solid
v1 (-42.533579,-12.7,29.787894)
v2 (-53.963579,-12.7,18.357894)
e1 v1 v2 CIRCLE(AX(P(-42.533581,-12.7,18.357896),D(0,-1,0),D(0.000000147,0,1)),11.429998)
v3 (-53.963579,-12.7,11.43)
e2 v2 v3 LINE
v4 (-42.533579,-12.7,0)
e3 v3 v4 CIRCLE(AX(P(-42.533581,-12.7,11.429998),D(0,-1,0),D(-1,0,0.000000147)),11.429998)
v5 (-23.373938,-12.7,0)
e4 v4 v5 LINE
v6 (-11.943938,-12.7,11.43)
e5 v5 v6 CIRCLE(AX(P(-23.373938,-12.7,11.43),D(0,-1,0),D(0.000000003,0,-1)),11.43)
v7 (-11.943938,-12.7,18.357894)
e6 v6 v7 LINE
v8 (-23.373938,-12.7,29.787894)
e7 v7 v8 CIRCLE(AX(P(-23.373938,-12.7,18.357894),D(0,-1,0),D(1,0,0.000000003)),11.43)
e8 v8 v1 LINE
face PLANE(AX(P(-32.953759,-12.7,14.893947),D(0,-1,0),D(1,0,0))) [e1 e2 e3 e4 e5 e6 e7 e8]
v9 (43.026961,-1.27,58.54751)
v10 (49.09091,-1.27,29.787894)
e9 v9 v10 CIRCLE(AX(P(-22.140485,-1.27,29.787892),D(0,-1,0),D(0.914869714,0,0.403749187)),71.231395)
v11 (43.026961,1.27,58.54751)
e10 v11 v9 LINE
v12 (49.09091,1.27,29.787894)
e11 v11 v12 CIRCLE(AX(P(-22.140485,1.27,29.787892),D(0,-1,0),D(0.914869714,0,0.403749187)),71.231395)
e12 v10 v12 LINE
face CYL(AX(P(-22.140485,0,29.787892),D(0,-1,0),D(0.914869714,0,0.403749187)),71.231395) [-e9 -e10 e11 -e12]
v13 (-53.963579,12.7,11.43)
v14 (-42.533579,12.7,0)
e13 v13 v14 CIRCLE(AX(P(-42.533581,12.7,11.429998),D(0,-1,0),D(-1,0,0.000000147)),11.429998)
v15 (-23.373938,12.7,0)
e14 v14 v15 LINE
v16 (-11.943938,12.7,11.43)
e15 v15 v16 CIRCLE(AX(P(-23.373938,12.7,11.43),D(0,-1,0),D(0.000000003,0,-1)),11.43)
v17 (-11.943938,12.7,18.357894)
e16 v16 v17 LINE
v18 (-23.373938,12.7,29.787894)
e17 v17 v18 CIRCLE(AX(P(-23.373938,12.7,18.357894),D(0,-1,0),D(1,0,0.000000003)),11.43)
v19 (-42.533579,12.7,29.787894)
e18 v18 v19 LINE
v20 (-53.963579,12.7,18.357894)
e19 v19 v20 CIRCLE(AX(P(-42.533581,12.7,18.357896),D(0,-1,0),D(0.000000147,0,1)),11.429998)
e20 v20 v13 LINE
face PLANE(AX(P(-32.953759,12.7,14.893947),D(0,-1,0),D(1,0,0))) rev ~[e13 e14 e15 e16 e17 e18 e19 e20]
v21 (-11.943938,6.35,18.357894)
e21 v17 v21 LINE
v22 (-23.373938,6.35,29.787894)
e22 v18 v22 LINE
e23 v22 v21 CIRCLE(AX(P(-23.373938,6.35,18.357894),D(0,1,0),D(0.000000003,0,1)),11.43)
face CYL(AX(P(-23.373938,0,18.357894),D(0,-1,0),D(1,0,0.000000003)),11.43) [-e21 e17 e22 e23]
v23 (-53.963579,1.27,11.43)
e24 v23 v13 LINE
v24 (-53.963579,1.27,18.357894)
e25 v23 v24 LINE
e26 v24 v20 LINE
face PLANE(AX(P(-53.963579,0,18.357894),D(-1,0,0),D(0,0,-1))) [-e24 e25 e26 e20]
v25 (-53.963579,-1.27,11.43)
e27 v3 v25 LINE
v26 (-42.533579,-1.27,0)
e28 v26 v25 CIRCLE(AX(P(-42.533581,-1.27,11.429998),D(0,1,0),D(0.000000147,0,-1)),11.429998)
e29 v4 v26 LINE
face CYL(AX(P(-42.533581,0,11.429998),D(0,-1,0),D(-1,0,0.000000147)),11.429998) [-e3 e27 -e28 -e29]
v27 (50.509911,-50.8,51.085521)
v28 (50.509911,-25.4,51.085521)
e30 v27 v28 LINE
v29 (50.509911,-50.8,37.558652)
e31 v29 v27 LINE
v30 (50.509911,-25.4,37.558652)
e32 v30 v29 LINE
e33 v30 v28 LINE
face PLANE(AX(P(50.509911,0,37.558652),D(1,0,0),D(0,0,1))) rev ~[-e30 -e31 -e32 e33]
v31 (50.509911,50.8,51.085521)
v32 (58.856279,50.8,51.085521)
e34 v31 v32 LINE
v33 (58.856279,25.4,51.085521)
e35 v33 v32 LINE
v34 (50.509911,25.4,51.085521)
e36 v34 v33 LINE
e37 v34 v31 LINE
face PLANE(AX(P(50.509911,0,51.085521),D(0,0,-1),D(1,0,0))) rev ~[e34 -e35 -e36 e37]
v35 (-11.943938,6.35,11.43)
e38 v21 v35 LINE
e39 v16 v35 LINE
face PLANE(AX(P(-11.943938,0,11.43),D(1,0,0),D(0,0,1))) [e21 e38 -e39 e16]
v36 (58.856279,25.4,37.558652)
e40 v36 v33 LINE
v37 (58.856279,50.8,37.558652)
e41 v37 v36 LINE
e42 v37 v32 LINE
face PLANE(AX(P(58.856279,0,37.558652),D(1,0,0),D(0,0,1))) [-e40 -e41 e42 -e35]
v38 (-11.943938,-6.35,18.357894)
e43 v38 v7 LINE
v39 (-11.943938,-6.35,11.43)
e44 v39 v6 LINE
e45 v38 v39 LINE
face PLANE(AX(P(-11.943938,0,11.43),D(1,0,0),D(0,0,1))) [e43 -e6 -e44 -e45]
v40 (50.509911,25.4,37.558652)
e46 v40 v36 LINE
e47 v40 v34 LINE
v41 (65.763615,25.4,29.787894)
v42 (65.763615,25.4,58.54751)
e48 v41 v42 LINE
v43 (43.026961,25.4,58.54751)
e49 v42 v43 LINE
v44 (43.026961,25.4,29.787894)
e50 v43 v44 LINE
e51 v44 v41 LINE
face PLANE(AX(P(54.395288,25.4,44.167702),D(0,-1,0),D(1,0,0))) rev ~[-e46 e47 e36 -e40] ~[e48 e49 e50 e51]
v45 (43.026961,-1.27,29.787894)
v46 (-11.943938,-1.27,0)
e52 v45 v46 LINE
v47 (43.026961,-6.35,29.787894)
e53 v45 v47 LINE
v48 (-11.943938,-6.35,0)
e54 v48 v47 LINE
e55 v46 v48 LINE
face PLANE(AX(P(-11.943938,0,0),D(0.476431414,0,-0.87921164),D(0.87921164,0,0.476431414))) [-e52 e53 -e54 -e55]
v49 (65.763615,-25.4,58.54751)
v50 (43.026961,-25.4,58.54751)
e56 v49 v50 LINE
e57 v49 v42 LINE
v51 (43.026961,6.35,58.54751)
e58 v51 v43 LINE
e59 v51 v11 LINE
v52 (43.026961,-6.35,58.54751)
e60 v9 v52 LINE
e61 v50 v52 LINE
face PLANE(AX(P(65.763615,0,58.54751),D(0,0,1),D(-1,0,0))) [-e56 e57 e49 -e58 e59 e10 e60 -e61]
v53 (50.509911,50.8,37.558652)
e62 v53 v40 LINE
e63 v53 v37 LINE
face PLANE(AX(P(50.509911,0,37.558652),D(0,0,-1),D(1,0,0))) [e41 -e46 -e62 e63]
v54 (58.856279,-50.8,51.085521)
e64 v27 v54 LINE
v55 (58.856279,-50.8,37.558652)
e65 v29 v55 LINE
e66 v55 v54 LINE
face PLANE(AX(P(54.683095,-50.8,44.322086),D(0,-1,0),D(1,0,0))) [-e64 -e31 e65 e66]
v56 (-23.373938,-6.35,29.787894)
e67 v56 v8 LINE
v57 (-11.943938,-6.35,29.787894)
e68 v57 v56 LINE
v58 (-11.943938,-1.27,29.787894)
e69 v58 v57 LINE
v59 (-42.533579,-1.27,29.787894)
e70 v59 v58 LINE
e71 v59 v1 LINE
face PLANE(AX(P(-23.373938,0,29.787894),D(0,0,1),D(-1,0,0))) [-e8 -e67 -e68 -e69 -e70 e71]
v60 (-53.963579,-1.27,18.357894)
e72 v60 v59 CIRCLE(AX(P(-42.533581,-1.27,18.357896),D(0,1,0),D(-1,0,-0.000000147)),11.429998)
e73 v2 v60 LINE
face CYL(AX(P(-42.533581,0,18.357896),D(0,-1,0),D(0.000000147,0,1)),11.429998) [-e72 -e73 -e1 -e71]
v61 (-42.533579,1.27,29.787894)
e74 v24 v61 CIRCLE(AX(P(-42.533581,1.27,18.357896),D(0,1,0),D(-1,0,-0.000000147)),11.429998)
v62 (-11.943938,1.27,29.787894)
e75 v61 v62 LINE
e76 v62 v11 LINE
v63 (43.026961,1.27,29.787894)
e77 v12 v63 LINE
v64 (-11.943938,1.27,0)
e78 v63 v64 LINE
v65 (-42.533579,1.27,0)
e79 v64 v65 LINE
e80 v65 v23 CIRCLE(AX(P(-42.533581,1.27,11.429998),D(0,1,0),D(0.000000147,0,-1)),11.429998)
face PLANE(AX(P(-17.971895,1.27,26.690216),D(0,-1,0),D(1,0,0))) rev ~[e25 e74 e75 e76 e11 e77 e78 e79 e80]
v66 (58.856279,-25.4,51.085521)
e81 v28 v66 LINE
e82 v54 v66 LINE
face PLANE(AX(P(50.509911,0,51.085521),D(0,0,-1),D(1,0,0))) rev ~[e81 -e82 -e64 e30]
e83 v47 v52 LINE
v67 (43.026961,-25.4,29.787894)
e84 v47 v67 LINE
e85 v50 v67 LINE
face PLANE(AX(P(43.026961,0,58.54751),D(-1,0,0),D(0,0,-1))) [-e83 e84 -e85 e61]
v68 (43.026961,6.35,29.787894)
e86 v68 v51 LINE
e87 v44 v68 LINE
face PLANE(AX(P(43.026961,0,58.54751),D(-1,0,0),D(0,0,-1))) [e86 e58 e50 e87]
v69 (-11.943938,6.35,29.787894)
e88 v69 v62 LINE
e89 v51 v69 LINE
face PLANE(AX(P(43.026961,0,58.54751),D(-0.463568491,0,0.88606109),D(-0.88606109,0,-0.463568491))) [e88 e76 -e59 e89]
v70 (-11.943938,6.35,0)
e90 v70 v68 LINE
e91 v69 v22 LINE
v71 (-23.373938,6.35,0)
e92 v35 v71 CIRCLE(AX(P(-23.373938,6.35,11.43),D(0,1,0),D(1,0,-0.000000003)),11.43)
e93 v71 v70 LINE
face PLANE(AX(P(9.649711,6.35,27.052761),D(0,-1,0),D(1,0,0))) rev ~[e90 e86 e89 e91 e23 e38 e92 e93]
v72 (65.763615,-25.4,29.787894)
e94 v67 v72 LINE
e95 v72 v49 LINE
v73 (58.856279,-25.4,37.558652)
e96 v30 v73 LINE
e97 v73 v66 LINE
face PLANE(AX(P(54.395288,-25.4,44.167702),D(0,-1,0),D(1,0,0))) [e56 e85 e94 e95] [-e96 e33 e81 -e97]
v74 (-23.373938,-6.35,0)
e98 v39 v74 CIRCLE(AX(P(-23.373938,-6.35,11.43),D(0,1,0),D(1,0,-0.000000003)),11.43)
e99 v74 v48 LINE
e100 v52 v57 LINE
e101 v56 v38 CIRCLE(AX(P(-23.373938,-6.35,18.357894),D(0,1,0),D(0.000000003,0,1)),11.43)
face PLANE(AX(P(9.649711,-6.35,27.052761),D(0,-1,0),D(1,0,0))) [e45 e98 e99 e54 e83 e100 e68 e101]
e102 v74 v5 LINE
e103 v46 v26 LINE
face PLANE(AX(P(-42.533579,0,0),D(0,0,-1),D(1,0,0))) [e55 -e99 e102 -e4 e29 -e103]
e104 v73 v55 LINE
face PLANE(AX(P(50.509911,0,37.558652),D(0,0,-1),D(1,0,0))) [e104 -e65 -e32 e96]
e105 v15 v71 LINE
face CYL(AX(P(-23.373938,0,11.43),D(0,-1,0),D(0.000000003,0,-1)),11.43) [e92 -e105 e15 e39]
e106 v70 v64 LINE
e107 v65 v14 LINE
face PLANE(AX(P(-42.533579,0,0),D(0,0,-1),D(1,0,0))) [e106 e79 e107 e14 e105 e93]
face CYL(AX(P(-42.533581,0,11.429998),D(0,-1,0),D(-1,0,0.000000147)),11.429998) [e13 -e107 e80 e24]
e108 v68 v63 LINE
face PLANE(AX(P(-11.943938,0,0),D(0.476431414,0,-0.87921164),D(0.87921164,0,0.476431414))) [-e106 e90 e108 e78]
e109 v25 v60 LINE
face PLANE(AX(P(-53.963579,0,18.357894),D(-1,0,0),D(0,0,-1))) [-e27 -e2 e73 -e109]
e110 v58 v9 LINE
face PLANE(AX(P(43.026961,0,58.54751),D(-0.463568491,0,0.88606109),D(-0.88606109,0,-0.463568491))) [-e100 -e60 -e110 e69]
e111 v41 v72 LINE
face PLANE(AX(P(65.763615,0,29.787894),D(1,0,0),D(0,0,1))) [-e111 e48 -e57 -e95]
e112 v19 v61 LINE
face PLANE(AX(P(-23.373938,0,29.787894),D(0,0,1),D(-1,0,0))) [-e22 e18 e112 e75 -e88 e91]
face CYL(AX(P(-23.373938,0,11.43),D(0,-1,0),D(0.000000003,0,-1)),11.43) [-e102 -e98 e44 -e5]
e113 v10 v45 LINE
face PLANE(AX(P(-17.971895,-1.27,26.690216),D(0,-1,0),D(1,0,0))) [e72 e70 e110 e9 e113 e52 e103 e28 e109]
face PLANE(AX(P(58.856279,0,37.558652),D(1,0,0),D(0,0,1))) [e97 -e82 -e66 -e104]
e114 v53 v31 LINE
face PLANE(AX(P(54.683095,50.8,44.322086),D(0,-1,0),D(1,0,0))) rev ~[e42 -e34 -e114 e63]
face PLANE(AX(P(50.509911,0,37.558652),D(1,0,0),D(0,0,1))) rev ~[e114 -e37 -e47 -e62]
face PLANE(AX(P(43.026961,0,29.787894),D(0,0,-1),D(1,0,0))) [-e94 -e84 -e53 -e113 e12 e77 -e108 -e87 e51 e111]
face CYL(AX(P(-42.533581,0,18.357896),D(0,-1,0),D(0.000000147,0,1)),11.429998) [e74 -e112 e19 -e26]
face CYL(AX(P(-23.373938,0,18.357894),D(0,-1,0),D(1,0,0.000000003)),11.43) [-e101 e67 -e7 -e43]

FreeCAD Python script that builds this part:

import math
import FreeCAD as App
import Part
import Sketcher
from FreeCAD import Vector
Q = App.Units.Quantity

doc = App.newDocument("Part")
body = doc.addObject("PartDesign::Body", "Body")

sketch1 = doc.addObject("Sketcher::SketchObject", "Sketch")
body.addObject(sketch1)
sketch1.AttachmentSupport = (doc.XZ_Plane, [""])
sketch1.MapMode = "FlatFace"
sketch1.addGeometry([
    Part.LineSegment(Vector(-42.533579, 0, 0), Vector(-23.373938, 0, 0)),
    Part.ArcOfCircle(Part.Circle(Vector(-23.373938, 11.43, 0), Vector(0, 0, 1), 11.43), math.radians(-90), math.radians(0)),
    Part.LineSegment(Vector(-11.943938, 11.43, 0), Vector(-11.943938, 18.357894, 0)),
    Part.ArcOfCircle(Part.Circle(Vector(-23.373938, 18.357894, 0), Vector(0, 0, 1), 11.43), math.radians(0), math.radians(90)),
    Part.LineSegment(Vector(-23.373938, 29.787894, 0), Vector(-42.533579, 29.787894, 0)),
    Part.ArcOfCircle(Part.Circle(Vector(-42.533581, 18.357896, 0), Vector(0, 0, 1), 11.429998), math.radians(89.999992), math.radians(180.000008)),
    Part.LineSegment(Vector(-53.963579, 18.357894, 0), Vector(-53.963579, 11.43, 0)),
    Part.ArcOfCircle(Part.Circle(Vector(-42.533581, 11.429998, 0), Vector(0, 0, 1), 11.429998), math.radians(179.999992), math.radians(270.000008)),
], False)
sketch1.addConstraint([
    Sketcher.Constraint("Tangent", 0, 2, 1, 1),
    Sketcher.Constraint("Tangent", 1, 2, 2, 1),
    Sketcher.Constraint("Tangent", 2, 2, 3, 1),
    Sketcher.Constraint("Tangent", 3, 2, 4, 1),
    Sketcher.Constraint("Tangent", 4, 2, 5, 1),
    Sketcher.Constraint("Tangent", 5, 2, 6, 1),
    Sketcher.Constraint("Tangent", 6, 2, 7, 1),
    Sketcher.Constraint("Tangent", 7, 2, 0, 1),
    Sketcher.Constraint("Horizontal", 0),
    Sketcher.Constraint("Vertical", 2),
    Sketcher.Constraint("Horizontal", 4),
    Sketcher.Constraint("Vertical", 6),
    Sketcher.Constraint("Equal", 1, 3),
    Sketcher.Constraint("Equal", 3, 5),
    Sketcher.Constraint("Equal", 5, 7),
    Sketcher.Constraint("PointOnObject", 0, 2, -1),
    Sketcher.Constraint("Radius", 1, Q("0.45 in")),
    Sketcher.Constraint("DistanceX", 0, 1, 0, 2, Q("19.159641 mm")),
    Sketcher.Constraint("DistanceY", 2, 1, 2, 2, Q("6.927894 mm")),
    Sketcher.Constraint("DistanceX", 1, 3, -1, 1, Q("23.373938 mm")),
])
pad1 = doc.addObject("PartDesign::Pad", "Pad")
body.addObject(pad1)
pad1.Profile = sketch1
pad1.Length = Q("1 in")
pad1.Midplane = True

sketch2 = doc.addObject("Sketcher::SketchObject", "Sketch001")
body.addObject(sketch2)
sketch2.AttachmentSupport = (doc.XZ_Plane, [""])
sketch2.MapMode = "FlatFace"
sketch2.addGeometry([
    Part.ArcOfCircle(Part.Circle(Vector(-23.373938, 11.43, 0), Vector(0, 0, 1), 11.43), math.radians(-90), math.radians(0)),
    Part.LineSegment(Vector(-23.373938, 0, 0), Vector(-11.943938, 0, 0)),
    Part.LineSegment(Vector(-11.943938, 0, 0), Vector(43.026961, 29.787894, 0)),
    Part.LineSegment(Vector(43.026961, 29.787894, 0), Vector(43.026961, 58.54751, 0)),
    Part.LineSegment(Vector(43.026961, 58.54751, 0), Vector(-11.943938, 29.787894, 0)),
    Part.LineSegment(Vector(-11.943938, 29.787894, 0), Vector(-23.373938, 29.787894, 0)),
    Part.ArcOfCircle(Part.Circle(Vector(-23.373938, 18.357894, 0), Vector(0, 0, 1), 11.43), math.radians(0), math.radians(90)),
    Part.LineSegment(Vector(-11.943938, 18.357894, 0), Vector(-11.943938, 11.43, 0)),
], False)
sketch2.addConstraint([
    Sketcher.Constraint("Tangent", 0, 1, 1, 1),
    Sketcher.Constraint("Coincident", 1, 2, 2, 1),
    Sketcher.Constraint("Coincident", 2, 2, 3, 1),
    Sketcher.Constraint("Coincident", 3, 2, 4, 1),
    Sketcher.Constraint("Coincident", 4, 2, 5, 1),
    Sketcher.Constraint("Tangent", 5, 2, 6, 2),
    Sketcher.Constraint("Tangent", 6, 1, 7, 1),
    Sketcher.Constraint("Tangent", 7, 2, 0, 2),
    Sketcher.Constraint("Horizontal", 1),
    Sketcher.Constraint("Vertical", 3),
    Sketcher.Constraint("Horizontal", 5),
    Sketcher.Constraint("Vertical", 7),
    Sketcher.Constraint("Equal", 0, 6),
    Sketcher.Constraint("PointOnObject", 0, 1, -1),
    Sketcher.Constraint("Horizontal", 2, 2, 4, 2),
    Sketcher.Constraint("Vertical", 1, 2, 4, 2),
    Sketcher.Constraint("Vertical", 4, 2, 6, 1),
    Sketcher.Constraint("Radius", 0, Q("0.45 in")),
    Sketcher.Constraint("DistanceX", 1, 2, 2, 2, Q("54.970899 mm")),
    Sketcher.Constraint("DistanceY", 3, 1, 3, 2, Q("28.759616 mm")),
    Sketcher.Constraint("DistanceY", 7, 2, 7, 1, Q("6.927894 mm")),
    Sketcher.Constraint("DistanceX", 0, 3, -1, 1, Q("23.373938 mm")),
])
pad2 = doc.addObject("PartDesign::Pad", "Pad001")
body.addObject(pad2)
pad2.Profile = sketch2
pad2.Length = Q("0.5 in")
pad2.Midplane = True

sketch3 = doc.addObject("Sketcher::SketchObject", "Sketch002")
body.addObject(sketch3)
sketch3.AttachmentSupport = (doc.XZ_Plane, [""])
sketch3.MapMode = "FlatFace"
sketch3.addGeometry([
    Part.LineSegment(Vector(43.026961, 58.54751, 0), Vector(43.026961, 29.787894, 0)),
    Part.LineSegment(Vector(43.026961, 29.787894, 0), Vector(65.763615, 29.787894, 0)),
    Part.LineSegment(Vector(65.763615, 29.787894, 0), Vector(65.763615, 58.54751, 0)),
    Part.LineSegment(Vector(65.763615, 58.54751, 0), Vector(43.026961, 58.54751, 0)),
    Part.LineSegment(Vector(58.856279, 37.558652, 0), Vector(50.509911, 37.558652, 0)),
    Part.LineSegment(Vector(50.509911, 37.558652, 0), Vector(50.509911, 51.085521, 0)),
    Part.LineSegment(Vector(50.509911, 51.085521, 0), Vector(58.856279, 51.085521, 0)),
    Part.LineSegment(Vector(58.856279, 51.085521, 0), Vector(58.856279, 37.558652, 0)),
], False)
sketch3.addConstraint([
    Sketcher.Constraint("Coincident", 0, 2, 1, 1),
    Sketcher.Constraint("Coincident", 1, 2, 2, 1),
    Sketcher.Constraint("Coincident", 2, 2, 3, 1),
    Sketcher.Constraint("Coincident", 3, 2, 0, 1),
    Sketcher.Constraint("Coincident", 4, 2, 5, 1),
    Sketcher.Constraint("Coincident", 5, 2, 6, 1),
    Sketcher.Constraint("Coincident", 6, 2, 7, 1),
    Sketcher.Constraint("Coincident", 7, 2, 4, 1),
    Sketcher.Constraint("Vertical", 0),
    Sketcher.Constraint("Horizontal", 1),
    Sketcher.Constraint("Vertical", 2),
    Sketcher.Constraint("Horizontal", 3),
    Sketcher.Constraint("Horizontal", 4),
    Sketcher.Constraint("Vertical", 5),
    Sketcher.Constraint("Horizontal", 6),
    Sketcher.Constraint("Vertical", 7),
    Sketcher.Constraint("DistanceY", 5, 1, 5, 2, Q("13.526869 mm")),
    Sketcher.Constraint("DistanceX", 1, 1, 1, 2, Q("22.736654 mm")),
    Sketcher.Constraint("DistanceX", 4, 2, 4, 1, Q("8.346368 mm")),
    Sketcher.Constraint("DistanceY", 0, 2, 0, 1, Q("28.759616 mm")),
    Sketcher.Constraint("DistanceX", -1, 1, 0, 2, Q("43.026961 mm")),
    Sketcher.Constraint("DistanceY", -1, 1, 2, 2, Q("58.54751 mm")),
    Sketcher.Constraint("DistanceX", -1, 1, 4, 2, Q("50.509911 mm")),
    Sketcher.Constraint("DistanceY", -1, 1, 4, 2, Q("37.558652 mm")),
])
pad3 = doc.addObject("PartDesign::Pad", "Pad002")
body.addObject(pad3)
pad3.Profile = sketch3
pad3.Length = Q("2 in")
pad3.Midplane = True

sketch4 = doc.addObject("Sketcher::SketchObject", "Sketch003")
body.addObject(sketch4)
sketch4.AttachmentSupport = (doc.XZ_Plane, [""])
sketch4.MapMode = "FlatFace"
sketch4.addGeometry([
    Part.LineSegment(Vector(50.509911, 51.085521, 0), Vector(50.509911, 37.558652, 0)),
    Part.LineSegment(Vector(50.509911, 37.558652, 0), Vector(58.856279, 37.558652, 0)),
    Part.LineSegment(Vector(58.856279, 37.558652, 0), Vector(58.856279, 51.085521, 0)),
    Part.LineSegment(Vector(58.856279, 51.085521, 0), Vector(50.509911, 51.085521, 0)),
], False)
sketch4.addConstraint([
    Sketcher.Constraint("Coincident", 0, 2, 1, 1),
    Sketcher.Constraint("Coincident", 1, 2, 2, 1),
    Sketcher.Constraint("Coincident", 2, 2, 3, 1),
    Sketcher.Constraint("Coincident", 3, 2, 0, 1),
    Sketcher.Constraint("Vertical", 0),
    Sketcher.Constraint("Horizontal", 1),
    Sketcher.Constraint("Vertical", 2),
    Sketcher.Constraint("Horizontal", 3),
    Sketcher.Constraint("DistanceY", 0, 2, 0, 1, Q("13.526869 mm")),
    Sketcher.Constraint("DistanceX", 1, 1, 1, 2, Q("8.346368 mm")),
    Sketcher.Constraint("DistanceX", -1, 1, 0, 2, Q("50.509911 mm")),
    Sketcher.Constraint("DistanceY", -1, 1, 0, 2, Q("37.558652 mm")),
])
pad4 = doc.addObject("PartDesign::Pad", "Pad003")
body.addObject(pad4)
pad4.Profile = sketch4
pad4.Length = Q("4 in")
pad4.Midplane = True

sketch5 = doc.addObject("Sketcher::SketchObject", "Sketch004")
body.addObject(sketch5)
sketch5.AttachmentSupport = (doc.XZ_Plane, [""])
sketch5.MapMode = "FlatFace"
sketch5.addGeometry([
    Part.LineSegment(Vector(-11.943938, 0, 0), Vector(-42.533579, 0, 0)),
    Part.ArcOfCircle(Part.Circle(Vector(-42.533581, 11.429998, 0), Vector(0, 0, 1), 11.429998), math.radians(179.999992), math.radians(270.000008)),
    Part.LineSegment(Vector(-53.963579, 11.43, 0), Vector(-53.963579, 18.357894, 0)),
    Part.ArcOfCircle(Part.Circle(Vector(-42.533581, 18.357896, 0), Vector(0, 0, 1), 11.429998), math.radians(89.999992), math.radians(180.000008)),
    Part.LineSegment(Vector(-42.533579, 29.787894, 0), Vector(-11.943938, 29.787894, 0)),
    Part.LineSegment(Vector(-11.943938, 29.787894, 0), Vector(43.026961, 58.54751, 0)),
    Part.ArcOfCircle(Part.Circle(Vector(-22.140485, 29.787892, 0), Vector(0, 0, 1), 71.231395), math.radians(23.812769), math.radians(360.000001)),
    Part.LineSegment(Vector(49.09091, 29.787894, 0), Vector(43.026961, 29.787894, 0)),
    Part.LineSegment(Vector(43.026961, 29.787894, 0), Vector(-11.943938, 0, 0)),
], False)
sketch5.addConstraint([
    Sketcher.Constraint("Tangent", 0, 2, 1, 2),
    Sketcher.Constraint("Tangent", 1, 1, 2, 1),
    Sketcher.Constraint("Tangent", 2, 2, 3, 2),
    Sketcher.Constraint("Tangent", 3, 1, 4, 1),
    Sketcher.Constraint("Coincident", 4, 2, 5, 1),
    Sketcher.Constraint("Coincident", 5, 2, 6, 1),
    Sketcher.Constraint("Coincident", 6, 2, 7, 1),
    Sketcher.Constraint("Coincident", 7, 2, 8, 1),
    Sketcher.Constraint("Coincident", 8, 2, 0, 1),
    Sketcher.Constraint("Horizontal", 0),
    Sketcher.Constraint("Vertical", 2),
    Sketcher.Constraint("Horizontal", 4),
    Sketcher.Constraint("Horizontal", 7),
    Sketcher.Constraint("Equal", 1, 3),
    Sketcher.Constraint("PointOnObject", 0, 2, -1),
    Sketcher.Constraint("Horizontal", 6, 3, 3, 1),
    Sketcher.Constraint("Horizontal", 4, 2, 6, 2),
    Sketcher.Constraint("Vertical", 5, 2, 7, 2),
    Sketcher.Constraint("Vertical", 4, 2, 8, 2),
    Sketcher.Constraint("Radius", 1, Q("0.4499999 in")),
    Sketcher.Constraint("Radius", 6, Q("71.231395 mm")),
    Sketcher.Constraint("DistanceX", 0, 2, 0, 1, Q("30.589641 mm")),
    Sketcher.Constraint("DistanceX", 7, 2, 7, 1, Q("6.063949 mm")),
    Sketcher.Constraint("DistanceX", 4, 2, 5, 2, Q("54.970899 mm")),
    Sketcher.Constraint("DistanceY", 2, 1, 2, 2, Q("6.927894 mm")),
    Sketcher.Constraint("DistanceX", 1, 3, -1, 1, Q("42.533581 mm")),
])
pad5 = doc.addObject("PartDesign::Pad", "Pad004")
body.addObject(pad5)
pad5.Profile = sketch5
pad5.Length = Q("0.1 in")
pad5.Midplane = True

doc.recompute()
